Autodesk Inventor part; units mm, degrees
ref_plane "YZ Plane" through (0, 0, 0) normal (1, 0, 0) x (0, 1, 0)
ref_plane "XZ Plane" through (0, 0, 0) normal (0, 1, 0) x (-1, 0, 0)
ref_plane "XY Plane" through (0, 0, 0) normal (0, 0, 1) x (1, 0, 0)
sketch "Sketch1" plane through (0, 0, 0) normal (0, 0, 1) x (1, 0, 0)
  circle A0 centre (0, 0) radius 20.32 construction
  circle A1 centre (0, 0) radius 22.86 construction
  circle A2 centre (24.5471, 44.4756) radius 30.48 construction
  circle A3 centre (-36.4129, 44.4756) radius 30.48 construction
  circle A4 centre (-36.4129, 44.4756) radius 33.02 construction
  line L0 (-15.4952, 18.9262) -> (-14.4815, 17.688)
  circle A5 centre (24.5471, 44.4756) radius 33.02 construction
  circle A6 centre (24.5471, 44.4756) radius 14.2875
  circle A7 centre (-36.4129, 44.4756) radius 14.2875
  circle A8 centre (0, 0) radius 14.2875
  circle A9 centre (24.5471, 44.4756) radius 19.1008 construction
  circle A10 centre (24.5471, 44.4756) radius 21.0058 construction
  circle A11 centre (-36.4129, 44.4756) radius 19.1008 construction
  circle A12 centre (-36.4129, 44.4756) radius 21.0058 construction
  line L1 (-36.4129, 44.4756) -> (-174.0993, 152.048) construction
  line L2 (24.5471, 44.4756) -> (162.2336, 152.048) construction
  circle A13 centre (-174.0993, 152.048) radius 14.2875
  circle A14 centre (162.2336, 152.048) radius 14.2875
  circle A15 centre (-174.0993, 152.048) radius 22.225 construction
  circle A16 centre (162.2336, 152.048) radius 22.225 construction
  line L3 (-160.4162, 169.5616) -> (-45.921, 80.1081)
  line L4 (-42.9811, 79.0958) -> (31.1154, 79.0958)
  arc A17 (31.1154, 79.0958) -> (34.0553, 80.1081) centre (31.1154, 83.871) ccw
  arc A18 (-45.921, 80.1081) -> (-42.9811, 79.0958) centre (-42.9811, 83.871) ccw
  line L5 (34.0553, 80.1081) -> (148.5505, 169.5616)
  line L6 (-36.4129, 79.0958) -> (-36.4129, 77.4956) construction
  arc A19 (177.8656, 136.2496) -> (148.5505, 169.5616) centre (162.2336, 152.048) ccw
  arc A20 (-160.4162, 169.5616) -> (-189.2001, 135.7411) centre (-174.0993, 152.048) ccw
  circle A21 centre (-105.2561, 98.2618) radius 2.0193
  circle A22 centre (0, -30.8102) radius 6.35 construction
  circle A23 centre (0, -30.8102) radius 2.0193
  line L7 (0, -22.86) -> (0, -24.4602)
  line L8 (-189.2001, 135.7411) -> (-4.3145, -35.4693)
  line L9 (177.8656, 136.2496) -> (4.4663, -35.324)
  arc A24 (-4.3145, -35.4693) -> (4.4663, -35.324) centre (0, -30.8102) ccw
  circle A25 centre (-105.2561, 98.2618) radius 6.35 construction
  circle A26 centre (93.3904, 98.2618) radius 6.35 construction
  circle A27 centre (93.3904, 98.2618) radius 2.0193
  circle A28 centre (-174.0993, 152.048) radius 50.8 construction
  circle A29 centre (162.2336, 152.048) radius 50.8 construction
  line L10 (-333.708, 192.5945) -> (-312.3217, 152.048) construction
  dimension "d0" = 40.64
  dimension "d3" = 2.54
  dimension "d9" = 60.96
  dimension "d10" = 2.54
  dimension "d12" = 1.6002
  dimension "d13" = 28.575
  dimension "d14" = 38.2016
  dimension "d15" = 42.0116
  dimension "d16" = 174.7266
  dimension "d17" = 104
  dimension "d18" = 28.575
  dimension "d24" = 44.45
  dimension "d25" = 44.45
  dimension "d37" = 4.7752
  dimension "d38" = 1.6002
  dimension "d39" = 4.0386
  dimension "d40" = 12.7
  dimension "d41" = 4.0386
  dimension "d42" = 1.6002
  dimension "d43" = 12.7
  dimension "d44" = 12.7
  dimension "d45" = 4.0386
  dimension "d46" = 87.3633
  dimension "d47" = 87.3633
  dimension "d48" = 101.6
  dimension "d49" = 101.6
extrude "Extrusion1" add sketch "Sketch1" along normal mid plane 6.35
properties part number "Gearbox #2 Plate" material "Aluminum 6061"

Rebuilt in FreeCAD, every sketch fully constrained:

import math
import FreeCAD as App
import Part
import Sketcher
from FreeCAD import Vector
Q = App.Units.Quantity

doc = App.newDocument("Part")
body = doc.addObject("PartDesign::Body", "Body")

# Sketch on XY plane
sketch1 = body.newObject("Sketcher::SketchObject", "Sketch")
sketch1.AttachmentSupport = (doc.getObject("XY_Plane"), [""])
sketch1.MapMode = "FlatFace"
sketch1.addGeometry(Part.LineSegment(Vector(-45.921, 80.1081, 0), Vector(-160.4162, 169.5616, 0)), False)
sketch1.addGeometry(Part.ArcOfCircle(Part.Circle(Vector(-174.0993, 152.048, 0), Vector(0, 0, 1), 22.225), math.radians(52.000049), math.radians(227.199158)), False)
sketch1.addGeometry(Part.LineSegment(Vector(-189.2001, 135.7411, 0), Vector(-4.3145, -35.4693, 0)), False)
sketch1.addGeometry(Part.ArcOfCircle(Part.Circle(Vector(0, -30.8102, 0), Vector(0, 0, 1), 6.34997), math.radians(-132.800835), math.radians(-45.303062)), False)
sketch1.addGeometry(Part.LineSegment(Vector(4.4663, -35.324, 0), Vector(177.8656, 136.2496, 0)), False)
sketch1.addGeometry(Part.ArcOfCircle(Part.Circle(Vector(162.2336, 152.048, 0), Vector(0, 0, 1), 22.225), math.radians(-45.303335), math.radians(127.999951)), False)
sketch1.addGeometry(Part.LineSegment(Vector(148.5505, 169.5616, 0), Vector(34.0553, 80.1081, 0)), False)
sketch1.addGeometry(Part.ArcOfCircle(Part.Circle(Vector(31.1154, 83.871, 0), Vector(0, 0, 1), 4.7752), math.radians(-90), math.radians(-51.999997)), False)
sketch1.addGeometry(Part.LineSegment(Vector(31.1154, 79.0958, 0), Vector(-42.9811, 79.0958, 0)), False)
sketch1.addGeometry(Part.ArcOfCircle(Part.Circle(Vector(-42.9811, 83.871, 0), Vector(0, 0, 1), 4.775189), math.radians(-128.000003), math.radians(-90)), False)
sketch1.addGeometry(Part.Circle(Vector(-36.4129, 44.4756, 0), Vector(0, 0, 1), 14.2875), False)
sketch1.addGeometry(Part.Circle(Vector(0, -30.8102, 0), Vector(0, 0, 1), 2.0193), False)
sketch1.addGeometry(Part.Circle(Vector(0, 0, 0), Vector(0, 0, 1), 14.2875), False)
sketch1.addGeometry(Part.Circle(Vector(24.5471, 44.4756, 0), Vector(0, 0, 1), 14.2875), False)
sketch1.addGeometry(Part.Circle(Vector(-105.2561, 98.2618, 0), Vector(0, 0, 1), 2.0193), False)
sketch1.addGeometry(Part.Circle(Vector(-174.0993, 152.048, 0), Vector(0, 0, 1), 14.2875), False)
sketch1.addGeometry(Part.Circle(Vector(93.3904, 98.2618, 0), Vector(0, 0, 1), 2.0193), False)
sketch1.addGeometry(Part.Circle(Vector(162.2336, 152.048, 0), Vector(0, 0, 1), 14.2875), False)
sketch1.addConstraint(Sketcher.Constraint("Tangent", 0, 2, 1, 1))
sketch1.addConstraint(Sketcher.Constraint("Tangent", 1, 2, 2, 1))
sketch1.addConstraint(Sketcher.Constraint("Tangent", 2, 2, 3, 1))
sketch1.addConstraint(Sketcher.Constraint("Tangent", 3, 2, 4, 1))
sketch1.addConstraint(Sketcher.Constraint("Tangent", 4, 2, 5, 1))
sketch1.addConstraint(Sketcher.Constraint("Tangent", 5, 2, 6, 1))
sketch1.addConstraint(Sketcher.Constraint("Tangent", 6, 2, 7, 2))
sketch1.addConstraint(Sketcher.Constraint("Tangent", 7, 1, 8, 1))
sketch1.addConstraint(Sketcher.Constraint("Tangent", 8, 2, 9, 2))
sketch1.addConstraint(Sketcher.Constraint("Tangent", 9, 1, 0, 1))
sketch1.addConstraint(Sketcher.Constraint("Horizontal", 8))
sketch1.addConstraint(Sketcher.Constraint("Coincident", 12, 3, -1, 1))
sketch1.addConstraint(Sketcher.Constraint("Coincident", 11, 3, 3, 3))
sketch1.addConstraint(Sketcher.Constraint("Coincident", 15, 3, 1, 3))
sketch1.addConstraint(Sketcher.Constraint("Coincident", 17, 3, 5, 3))
sketch1.addConstraint(Sketcher.Constraint("Equal", 1, 5))
sketch1.addConstraint(Sketcher.Constraint("Equal", 7, 9))
sketch1.addConstraint(Sketcher.Constraint("Equal", 10, 12))
sketch1.addConstraint(Sketcher.Constraint("Equal", 12, 13))
sketch1.addConstraint(Sketcher.Constraint("Equal", 11, 14))
sketch1.addConstraint(Sketcher.Constraint("Equal", 13, 15))
sketch1.addConstraint(Sketcher.Constraint("Equal", 14, 16))
sketch1.addConstraint(Sketcher.Constraint("Equal", 15, 17))
sketch1.addConstraint(Sketcher.Constraint("PointOnObject", 3, 3, -2))
sketch1.addConstraint(Sketcher.Constraint("Horizontal", 1, 3, 5, 3))
sketch1.addConstraint(Sketcher.Constraint("Horizontal", 10, 3, 13, 3))
sketch1.addConstraint(Sketcher.Constraint("Horizontal", 14, 3, 16, 3))
sketch1.addConstraint(Sketcher.Constraint("Horizontal", 0, 2, 5, 2))
sketch1.addConstraint(Sketcher.Constraint("Radius", 3, Q("0.25 in")))
sketch1.addConstraint(Sketcher.Constraint("Diameter", 10, Q("1.125 in")))
sketch1.addConstraint(Sketcher.Constraint("Diameter", 11, Q("0.159 in")))
sketch1.addConstraint(Sketcher.Constraint("Radius", 1, Q("0.875 in")))
sketch1.addConstraint(Sketcher.Constraint("Radius", 7, Q("0.188 in")))
sketch1.addConstraint(Sketcher.Constraint("DistanceX", 10, 3, 13, 3, Q("2.4 in")))
sketch1.addConstraint(Sketcher.Constraint("Angle", 0, Q("142 deg")))
sketch1.addConstraint(Sketcher.Constraint("Angle", 2, Q("-42.8007 deg")))
sketch1.addConstraint(Sketcher.Constraint("DistanceY", 3, 3, -1, 1, Q("1.213 in")))
sketch1.addConstraint(Sketcher.Constraint("DistanceY", -1, 1, 7, 3, Q("3.302 in")))
sketch1.addConstraint(Sketcher.Constraint("DistanceY", -1, 1, 10, 3, Q("1.751 in")))
sketch1.addConstraint(Sketcher.Constraint("Distance", 2, Q("9.9206 in")))
sketch1.addConstraint(Sketcher.Constraint("DistanceX", 8, 2, 8, 1, 74.0965))
sketch1.addConstraint(Sketcher.Constraint("DistanceX", 9, 3, 10, 3, Q("0.2586 in")))
sketch1.addConstraint(Sketcher.Constraint("DistanceX", 16, 3, 4, 2, Q("3.3258 in")))
sketch1.addConstraint(Sketcher.Constraint("DistanceX", 14, 3, -1, 1, 105.256))
sketch1.addConstraint(Sketcher.Constraint("DistanceY", -1, 1, 14, 3, 98.2618))
pad1 = body.newObject("PartDesign::Pad", "Pad")
pad1.Profile = sketch1
pad1.Length = Q("0.25 in")
pad1.Midplane = True

doc.recompute()
